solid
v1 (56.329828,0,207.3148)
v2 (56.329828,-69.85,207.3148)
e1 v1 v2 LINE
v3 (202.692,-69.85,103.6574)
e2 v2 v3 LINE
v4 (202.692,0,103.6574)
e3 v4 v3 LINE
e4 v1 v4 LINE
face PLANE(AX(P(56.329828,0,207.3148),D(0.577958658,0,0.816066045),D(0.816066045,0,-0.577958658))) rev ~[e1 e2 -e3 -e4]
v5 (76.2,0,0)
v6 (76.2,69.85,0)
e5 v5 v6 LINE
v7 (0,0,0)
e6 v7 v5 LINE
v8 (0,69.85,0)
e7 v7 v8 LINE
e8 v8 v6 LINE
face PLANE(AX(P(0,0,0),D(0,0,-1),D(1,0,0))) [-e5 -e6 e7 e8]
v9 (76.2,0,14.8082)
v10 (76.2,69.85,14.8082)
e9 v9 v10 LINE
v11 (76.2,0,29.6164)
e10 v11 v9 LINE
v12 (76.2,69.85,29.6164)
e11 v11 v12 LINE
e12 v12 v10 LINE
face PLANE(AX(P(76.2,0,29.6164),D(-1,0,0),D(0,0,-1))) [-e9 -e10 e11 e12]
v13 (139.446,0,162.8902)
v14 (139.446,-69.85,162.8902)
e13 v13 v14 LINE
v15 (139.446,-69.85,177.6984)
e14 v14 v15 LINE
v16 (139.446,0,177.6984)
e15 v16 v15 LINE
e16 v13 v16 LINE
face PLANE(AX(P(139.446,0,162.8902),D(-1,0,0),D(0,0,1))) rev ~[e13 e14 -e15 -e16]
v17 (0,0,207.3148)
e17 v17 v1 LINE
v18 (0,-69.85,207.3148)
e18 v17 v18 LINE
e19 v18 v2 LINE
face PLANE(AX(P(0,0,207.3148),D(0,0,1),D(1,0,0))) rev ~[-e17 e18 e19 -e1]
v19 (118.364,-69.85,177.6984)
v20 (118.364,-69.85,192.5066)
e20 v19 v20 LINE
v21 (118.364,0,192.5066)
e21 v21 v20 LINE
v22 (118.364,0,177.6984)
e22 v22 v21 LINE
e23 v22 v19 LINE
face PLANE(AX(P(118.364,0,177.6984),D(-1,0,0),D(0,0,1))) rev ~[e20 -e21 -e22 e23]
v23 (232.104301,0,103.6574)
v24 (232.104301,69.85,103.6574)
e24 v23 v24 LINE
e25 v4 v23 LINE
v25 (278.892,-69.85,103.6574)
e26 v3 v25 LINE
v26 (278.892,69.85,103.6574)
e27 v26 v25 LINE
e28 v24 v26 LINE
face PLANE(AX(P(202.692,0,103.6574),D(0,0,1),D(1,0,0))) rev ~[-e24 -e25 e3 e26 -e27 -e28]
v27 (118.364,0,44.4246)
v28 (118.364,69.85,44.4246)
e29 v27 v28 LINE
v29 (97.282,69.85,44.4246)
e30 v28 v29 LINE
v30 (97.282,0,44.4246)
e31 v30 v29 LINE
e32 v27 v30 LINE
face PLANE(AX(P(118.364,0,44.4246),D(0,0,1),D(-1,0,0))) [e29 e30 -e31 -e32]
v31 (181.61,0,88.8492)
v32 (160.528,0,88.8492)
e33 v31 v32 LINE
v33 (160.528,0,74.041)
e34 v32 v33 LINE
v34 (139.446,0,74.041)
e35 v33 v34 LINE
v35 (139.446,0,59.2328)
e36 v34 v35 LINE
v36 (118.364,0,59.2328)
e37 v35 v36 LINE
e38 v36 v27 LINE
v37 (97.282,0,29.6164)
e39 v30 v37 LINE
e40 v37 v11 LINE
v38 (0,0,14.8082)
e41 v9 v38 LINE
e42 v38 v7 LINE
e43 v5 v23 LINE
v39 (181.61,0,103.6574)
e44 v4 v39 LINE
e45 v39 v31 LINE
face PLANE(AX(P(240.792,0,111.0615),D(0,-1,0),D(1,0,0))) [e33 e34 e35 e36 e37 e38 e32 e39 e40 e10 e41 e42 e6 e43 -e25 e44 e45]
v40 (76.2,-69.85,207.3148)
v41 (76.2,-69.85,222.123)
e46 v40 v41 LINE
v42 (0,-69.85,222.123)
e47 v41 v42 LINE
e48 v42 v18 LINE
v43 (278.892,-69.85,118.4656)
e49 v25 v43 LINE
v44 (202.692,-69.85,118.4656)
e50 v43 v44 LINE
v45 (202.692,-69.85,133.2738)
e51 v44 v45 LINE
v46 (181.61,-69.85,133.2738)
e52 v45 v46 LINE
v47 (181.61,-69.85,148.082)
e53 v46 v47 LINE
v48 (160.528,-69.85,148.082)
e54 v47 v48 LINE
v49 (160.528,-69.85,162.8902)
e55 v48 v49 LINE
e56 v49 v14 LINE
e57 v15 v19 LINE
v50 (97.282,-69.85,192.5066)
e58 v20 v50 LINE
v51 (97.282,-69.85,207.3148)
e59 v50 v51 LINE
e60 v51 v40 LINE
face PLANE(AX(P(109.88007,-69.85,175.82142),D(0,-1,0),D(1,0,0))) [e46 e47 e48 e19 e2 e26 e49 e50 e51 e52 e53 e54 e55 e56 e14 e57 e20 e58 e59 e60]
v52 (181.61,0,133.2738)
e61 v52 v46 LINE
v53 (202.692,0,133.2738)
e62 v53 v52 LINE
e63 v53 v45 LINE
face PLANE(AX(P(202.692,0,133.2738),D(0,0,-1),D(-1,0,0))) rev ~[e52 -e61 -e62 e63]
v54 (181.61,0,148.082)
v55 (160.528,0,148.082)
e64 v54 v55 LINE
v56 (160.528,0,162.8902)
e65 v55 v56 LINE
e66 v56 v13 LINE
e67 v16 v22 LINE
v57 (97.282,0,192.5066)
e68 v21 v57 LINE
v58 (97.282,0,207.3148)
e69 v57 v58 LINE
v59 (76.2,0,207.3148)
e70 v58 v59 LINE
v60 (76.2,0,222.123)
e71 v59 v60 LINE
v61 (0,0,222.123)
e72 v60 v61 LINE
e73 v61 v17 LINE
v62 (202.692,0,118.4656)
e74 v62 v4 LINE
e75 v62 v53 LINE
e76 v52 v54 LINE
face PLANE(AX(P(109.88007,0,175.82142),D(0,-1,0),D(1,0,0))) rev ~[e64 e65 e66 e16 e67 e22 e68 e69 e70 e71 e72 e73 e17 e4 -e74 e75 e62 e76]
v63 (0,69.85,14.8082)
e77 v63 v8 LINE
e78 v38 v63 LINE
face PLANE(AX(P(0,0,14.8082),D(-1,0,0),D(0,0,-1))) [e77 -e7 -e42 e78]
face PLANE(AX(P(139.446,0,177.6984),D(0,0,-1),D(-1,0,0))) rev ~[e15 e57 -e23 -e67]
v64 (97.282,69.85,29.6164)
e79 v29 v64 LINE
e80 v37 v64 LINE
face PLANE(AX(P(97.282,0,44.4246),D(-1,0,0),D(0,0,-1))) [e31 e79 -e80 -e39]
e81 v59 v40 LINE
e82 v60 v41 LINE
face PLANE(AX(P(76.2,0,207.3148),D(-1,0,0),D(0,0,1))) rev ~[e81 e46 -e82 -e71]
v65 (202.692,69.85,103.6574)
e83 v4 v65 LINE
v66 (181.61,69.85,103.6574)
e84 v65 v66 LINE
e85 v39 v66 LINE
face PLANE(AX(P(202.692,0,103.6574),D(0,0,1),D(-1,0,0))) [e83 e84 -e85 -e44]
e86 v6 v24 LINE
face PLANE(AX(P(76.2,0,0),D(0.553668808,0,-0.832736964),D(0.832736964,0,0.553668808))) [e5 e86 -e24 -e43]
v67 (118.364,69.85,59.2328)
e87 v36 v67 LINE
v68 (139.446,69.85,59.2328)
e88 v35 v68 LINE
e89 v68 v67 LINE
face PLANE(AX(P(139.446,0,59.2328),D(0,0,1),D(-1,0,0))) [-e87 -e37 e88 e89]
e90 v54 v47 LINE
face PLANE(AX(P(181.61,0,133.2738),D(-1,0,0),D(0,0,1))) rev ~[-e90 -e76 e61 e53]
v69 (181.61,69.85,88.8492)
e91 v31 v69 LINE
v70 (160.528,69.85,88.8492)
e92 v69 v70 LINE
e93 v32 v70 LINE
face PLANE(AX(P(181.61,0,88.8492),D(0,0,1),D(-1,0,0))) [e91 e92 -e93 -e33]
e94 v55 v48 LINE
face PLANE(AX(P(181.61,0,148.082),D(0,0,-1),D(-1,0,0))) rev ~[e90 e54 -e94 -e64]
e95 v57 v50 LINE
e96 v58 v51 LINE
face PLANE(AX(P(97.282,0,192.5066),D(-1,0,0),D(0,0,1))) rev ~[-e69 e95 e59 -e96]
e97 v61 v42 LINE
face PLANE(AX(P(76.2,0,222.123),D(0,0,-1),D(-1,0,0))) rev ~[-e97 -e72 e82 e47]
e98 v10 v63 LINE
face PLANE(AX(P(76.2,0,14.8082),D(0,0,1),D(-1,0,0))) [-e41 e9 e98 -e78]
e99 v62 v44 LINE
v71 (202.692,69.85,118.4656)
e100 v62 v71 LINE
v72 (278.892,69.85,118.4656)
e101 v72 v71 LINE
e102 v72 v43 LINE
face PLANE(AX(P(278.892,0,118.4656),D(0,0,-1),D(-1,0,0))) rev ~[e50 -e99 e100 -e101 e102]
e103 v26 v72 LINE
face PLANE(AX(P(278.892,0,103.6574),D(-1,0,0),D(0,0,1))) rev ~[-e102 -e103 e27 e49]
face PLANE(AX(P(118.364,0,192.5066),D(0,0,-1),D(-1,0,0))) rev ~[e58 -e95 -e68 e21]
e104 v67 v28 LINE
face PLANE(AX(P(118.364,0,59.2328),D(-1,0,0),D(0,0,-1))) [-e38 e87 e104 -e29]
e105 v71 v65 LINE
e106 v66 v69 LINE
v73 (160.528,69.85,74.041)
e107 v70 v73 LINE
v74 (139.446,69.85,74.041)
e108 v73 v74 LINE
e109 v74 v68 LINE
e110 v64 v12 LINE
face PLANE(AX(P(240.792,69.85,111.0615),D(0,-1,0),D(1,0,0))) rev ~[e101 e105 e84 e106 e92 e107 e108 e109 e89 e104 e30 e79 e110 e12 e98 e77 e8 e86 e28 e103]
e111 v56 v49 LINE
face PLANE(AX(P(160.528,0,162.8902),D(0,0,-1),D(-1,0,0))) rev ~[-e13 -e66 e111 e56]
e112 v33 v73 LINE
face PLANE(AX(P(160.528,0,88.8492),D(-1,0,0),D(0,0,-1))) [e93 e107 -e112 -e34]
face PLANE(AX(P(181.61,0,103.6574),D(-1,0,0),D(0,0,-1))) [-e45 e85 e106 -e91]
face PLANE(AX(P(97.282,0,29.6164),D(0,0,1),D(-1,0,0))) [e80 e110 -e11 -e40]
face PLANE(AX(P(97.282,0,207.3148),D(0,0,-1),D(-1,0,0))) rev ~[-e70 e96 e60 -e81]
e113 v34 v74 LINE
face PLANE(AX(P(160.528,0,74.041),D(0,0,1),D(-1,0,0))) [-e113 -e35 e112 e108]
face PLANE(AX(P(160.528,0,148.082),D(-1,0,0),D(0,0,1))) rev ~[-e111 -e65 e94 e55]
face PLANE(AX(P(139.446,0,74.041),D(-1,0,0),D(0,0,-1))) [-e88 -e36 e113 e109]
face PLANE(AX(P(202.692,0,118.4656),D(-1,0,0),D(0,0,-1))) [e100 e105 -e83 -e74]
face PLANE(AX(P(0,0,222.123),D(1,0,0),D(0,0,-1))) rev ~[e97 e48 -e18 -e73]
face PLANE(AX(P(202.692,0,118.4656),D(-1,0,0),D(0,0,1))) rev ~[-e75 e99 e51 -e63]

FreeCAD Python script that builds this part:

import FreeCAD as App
import Part
import Sketcher
Q = App.Units.Quantity

doc = App.newDocument("Part")
body = doc.addObject("PartDesign::Body", "Body")

# Sketch on XZ plane
sketch1 = body.newObject("Sketcher::SketchObject", "Sketch")
sketch1.AttachmentSupport = (doc.getObject("XZ_Plane"), [""])
sketch1.MapMode = "FlatFace"
sketch1.addGeometry(Part.LineSegment(App.Vector(232, 104, 0), App.Vector(279, 104, 0)), False)
sketch1.addGeometry(Part.LineSegment(App.Vector(279, 104, 0), App.Vector(279, 118, 0)), False)
sketch1.addGeometry(Part.LineSegment(App.Vector(279, 118, 0), App.Vector(203, 118, 0)), False)
sketch1.addGeometry(Part.LineSegment(App.Vector(203, 118, 0), App.Vector(203, 104, 0)), False)
sketch1.addGeometry(Part.LineSegment(App.Vector(203, 104, 0), App.Vector(182, 104, 0)), False)
sketch1.addGeometry(Part.LineSegment(App.Vector(182, 104, 0), App.Vector(182, 89, 0)), False)
sketch1.addGeometry(Part.LineSegment(App.Vector(182, 89, 0), App.Vector(161, 89, 0)), False)
sketch1.addGeometry(Part.LineSegment(App.Vector(161, 89, 0), App.Vector(161, 74, 0)), False)
sketch1.addGeometry(Part.LineSegment(App.Vector(161, 74, 0), App.Vector(139, 74, 0)), False)
sketch1.addGeometry(Part.LineSegment(App.Vector(139, 74, 0), App.Vector(139, 59, 0)), False)
sketch1.addGeometry(Part.LineSegment(App.Vector(139, 59, 0), App.Vector(118, 59, 0)), False)
sketch1.addGeometry(Part.LineSegment(App.Vector(118, 59, 0), App.Vector(118, 44, 0)), False)
sketch1.addGeometry(Part.LineSegment(App.Vector(118, 44, 0), App.Vector(97, 44, 0)), False)
sketch1.addGeometry(Part.LineSegment(App.Vector(97, 44, 0), App.Vector(97, 30, 0)), False)
sketch1.addGeometry(Part.LineSegment(App.Vector(97, 30, 0), App.Vector(76, 30, 0)), False)
sketch1.addGeometry(Part.LineSegment(App.Vector(76, 30, 0), App.Vector(76, 15, 0)), False)
sketch1.addGeometry(Part.LineSegment(App.Vector(76, 15, 0), App.Vector(0, 15, 0)), False)
sketch1.addGeometry(Part.LineSegment(App.Vector(0, 15, 0), App.Vector(0, 0, 0)), False)
sketch1.addGeometry(Part.LineSegment(App.Vector(0, 0, 0), App.Vector(76, 0, 0)), False)
sketch1.addGeometry(Part.LineSegment(App.Vector(76, 0, 0), App.Vector(232, 104, 0)), False)
sketch1.addConstraint(Sketcher.Constraint("Coincident", 0, 2, 1, 1))
sketch1.addConstraint(Sketcher.Constraint("Coincident", 1, 2, 2, 1))
sketch1.addConstraint(Sketcher.Constraint("Coincident", 2, 2, 3, 1))
sketch1.addConstraint(Sketcher.Constraint("Coincident", 3, 2, 4, 1))
sketch1.addConstraint(Sketcher.Constraint("Coincident", 4, 2, 5, 1))
sketch1.addConstraint(Sketcher.Constraint("Coincident", 5, 2, 6, 1))
sketch1.addConstraint(Sketcher.Constraint("Coincident", 6, 2, 7, 1))
sketch1.addConstraint(Sketcher.Constraint("Coincident", 7, 2, 8, 1))
sketch1.addConstraint(Sketcher.Constraint("Coincident", 8, 2, 9, 1))
sketch1.addConstraint(Sketcher.Constraint("Coincident", 9, 2, 10, 1))
sketch1.addConstraint(Sketcher.Constraint("Coincident", 10, 2, 11, 1))
sketch1.addConstraint(Sketcher.Constraint("Coincident", 11, 2, 12, 1))
sketch1.addConstraint(Sketcher.Constraint("Coincident", 12, 2, 13, 1))
sketch1.addConstraint(Sketcher.Constraint("Coincident", 13, 2, 14, 1))
sketch1.addConstraint(Sketcher.Constraint("Coincident", 14, 2, 15, 1))
sketch1.addConstraint(Sketcher.Constraint("Coincident", 15, 2, 16, 1))
sketch1.addConstraint(Sketcher.Constraint("Coincident", 16, 2, 17, 1))
sketch1.addConstraint(Sketcher.Constraint("Coincident", 17, 2, 18, 1))
sketch1.addConstraint(Sketcher.Constraint("Coincident", 18, 2, 19, 1))
sketch1.addConstraint(Sketcher.Constraint("Coincident", 19, 2, 0, 1))
sketch1.addConstraint(Sketcher.Constraint("Horizontal", 0))
sketch1.addConstraint(Sketcher.Constraint("Vertical", 1))
sketch1.addConstraint(Sketcher.Constraint("Horizontal", 2))
sketch1.addConstraint(Sketcher.Constraint("Vertical", 3))
sketch1.addConstraint(Sketcher.Constraint("Horizontal", 4))
sketch1.addConstraint(Sketcher.Constraint("Vertical", 5))
sketch1.addConstraint(Sketcher.Constraint("Horizontal", 6))
sketch1.addConstraint(Sketcher.Constraint("Vertical", 7))
sketch1.addConstraint(Sketcher.Constraint("Horizontal", 8))
sketch1.addConstraint(Sketcher.Constraint("Vertical", 9))
sketch1.addConstraint(Sketcher.Constraint("Horizontal", 10))
sketch1.addConstraint(Sketcher.Constraint("Vertical", 11))
sketch1.addConstraint(Sketcher.Constraint("Horizontal", 12))
sketch1.addConstraint(Sketcher.Constraint("Vertical", 13))
sketch1.addConstraint(Sketcher.Constraint("Horizontal", 14))
sketch1.addConstraint(Sketcher.Constraint("Vertical", 15))
sketch1.addConstraint(Sketcher.Constraint("Horizontal", 16))
sketch1.addConstraint(Sketcher.Constraint("Vertical", 17))
sketch1.addConstraint(Sketcher.Constraint("Horizontal", 18))
sketch1.addConstraint(Sketcher.Constraint("Coincident", 17, 2, -1, 1))
sketch1.addConstraint(Sketcher.Constraint("Horizontal", 0, 2, 3, 2))
sketch1.addConstraint(Sketcher.Constraint("Vertical", 15, 2, 18, 2))
sketch1.addConstraint(Sketcher.Constraint("Equal", 4, 6))
sketch1.addConstraint(Sketcher.Constraint("Equal", 6, 8))
sketch1.addConstraint(Sketcher.Constraint("Equal", 8, 10))
sketch1.addConstraint(Sketcher.Constraint("Equal", 10, 12))
sketch1.addConstraint(Sketcher.Constraint("Equal", 12, 14))
sketch1.addConstraint(Sketcher.Constraint("Equal", 2, 16))
sketch1.addConstraint(Sketcher.Constraint("Equal", 3, 5))
sketch1.addConstraint(Sketcher.Constraint("Equal", 5, 7))
sketch1.addConstraint(Sketcher.Constraint("Equal", 7, 9))
sketch1.addConstraint(Sketcher.Constraint("Equal", 9, 11))
sketch1.addConstraint(Sketcher.Constraint("Equal", 11, 13))
sketch1.addConstraint(Sketcher.Constraint("Equal", 13, 15))
sketch1.addConstraint(Sketcher.Constraint("Equal", 15, 17))
sketch1.addConstraint(Sketcher.Constraint("DistanceX", 2, 2, 2, 1, Q("3 in")))
sketch1.addConstraint(Sketcher.Constraint("DistanceX", 4, 2, 4, 1, Q("0.83 in")))
sketch1.addConstraint(Sketcher.Constraint("DistanceY", 1, 1, 1, 2, Q("0.583 in")))
sketch1.addConstraint(Sketcher.Constraint("DistanceX", 0, 1, 0, 2, Q("46.787699 mm")))
pad1 = body.newObject("PartDesign::Pad", "Pad")
pad1.Profile = sketch1
pad1.Length = Q("2.75 in")
pad1.Reversed = True

# Sketch on XZ plane
sketch2 = body.newObject("Sketcher::SketchObject", "Sketch001")
sketch2.AttachmentSupport = (doc.getObject("XZ_Plane"), [""])
sketch2.MapMode = "FlatFace"
sketch2.addGeometry(Part.LineSegment(App.Vector(56, 207, 0), App.Vector(203, 104, 0)), False)
sketch2.addGeometry(Part.LineSegment(App.Vector(203, 104, 0), App.Vector(279, 104, 0)), False)
sketch2.addGeometry(Part.LineSegment(App.Vector(279, 104, 0), App.Vector(279, 118, 0)), False)
sketch2.addGeometry(Part.LineSegment(App.Vector(279, 118, 0), App.Vector(203, 118, 0)), False)
sketch2.addGeometry(Part.LineSegment(App.Vector(203, 118, 0), App.Vector(203, 133, 0)), False)
sketch2.addGeometry(Part.LineSegment(App.Vector(203, 133, 0), App.Vector(182, 133, 0)), False)
sketch2.addGeometry(Part.LineSegment(App.Vector(182, 133, 0), App.Vector(182, 148, 0)), False)
sketch2.addGeometry(Part.LineSegment(App.Vector(182, 148, 0), App.Vector(161, 148, 0)), False)
sketch2.addGeometry(Part.LineSegment(App.Vector(161, 148, 0), App.Vector(161, 163, 0)), False)
sketch2.addGeometry(Part.LineSegment(App.Vector(161, 163, 0), App.Vector(139, 163, 0)), False)
sketch2.addGeometry(Part.LineSegment(App.Vector(139, 163, 0), App.Vector(139, 178, 0)), False)
sketch2.addGeometry(Part.LineSegment(App.Vector(139, 178, 0), App.Vector(118, 178, 0)), False)
sketch2.addGeometry(Part.LineSegment(App.Vector(118, 178, 0), App.Vector(118, 193, 0)), False)
sketch2.addGeometry(Part.LineSegment(App.Vector(118, 193, 0), App.Vector(97, 193, 0)), False)
sketch2.addGeometry(Part.LineSegment(App.Vector(97, 193, 0), App.Vector(97, 207, 0)), False)
sketch2.addGeometry(Part.LineSegment(App.Vector(97, 207, 0), App.Vector(76, 207, 0)), False)
sketch2.addGeometry(Part.LineSegment(App.Vector(76, 207, 0), App.Vector(76, 222, 0)), False)
sketch2.addGeometry(Part.LineSegment(App.Vector(76, 222, 0), App.Vector(0, 222, 0)), False)
sketch2.addGeometry(Part.LineSegment(App.Vector(0, 222, 0), App.Vector(0, 207, 0)), False)
sketch2.addGeometry(Part.LineSegment(App.Vector(0, 207, 0), App.Vector(56, 207, 0)), False)
sketch2.addConstraint(Sketcher.Constraint("Coincident", 0, 2, 1, 1))
sketch2.addConstraint(Sketcher.Constraint("Coincident", 1, 2, 2, 1))
sketch2.addConstraint(Sketcher.Constraint("Coincident", 2, 2, 3, 1))
sketch2.addConstraint(Sketcher.Constraint("Coincident", 3, 2, 4, 1))
sketch2.addConstraint(Sketcher.Constraint("Coincident", 4, 2, 5, 1))
sketch2.addConstraint(Sketcher.Constraint("Coincident", 5, 2, 6, 1))
sketch2.addConstraint(Sketcher.Constraint("Coincident", 6, 2, 7, 1))
sketch2.addConstraint(Sketcher.Constraint("Coincident", 7, 2, 8, 1))
sketch2.addConstraint(Sketcher.Constraint("Coincident", 8, 2, 9, 1))
sketch2.addConstraint(Sketcher.Constraint("Coincident", 9, 2, 10, 1))
sketch2.addConstraint(Sketcher.Constraint("Coincident", 10, 2, 11, 1))
sketch2.addConstraint(Sketcher.Constraint("Coincident", 11, 2, 12, 1))
sketch2.addConstraint(Sketcher.Constraint("Coincident", 12, 2, 13, 1))
sketch2.addConstraint(Sketcher.Constraint("Coincident", 13, 2, 14, 1))
sketch2.addConstraint(Sketcher.Constraint("Coincident", 14, 2, 15, 1))
sketch2.addConstraint(Sketcher.Constraint("Coincident", 15, 2, 16, 1))
sketch2.addConstraint(Sketcher.Constraint("Coincident", 16, 2, 17, 1))
sketch2.addConstraint(Sketcher.Constraint("Coincident", 17, 2, 18, 1))
sketch2.addConstraint(Sketcher.Constraint("Coincident", 18, 2, 19, 1))
sketch2.addConstraint(Sketcher.Constraint("Coincident", 19, 2, 0, 1))
sketch2.addConstraint(Sketcher.Constraint("Horizontal", 1))
sketch2.addConstraint(Sketcher.Constraint("Vertical", 2))
sketch2.addConstraint(Sketcher.Constraint("Horizontal", 3))
sketch2.addConstraint(Sketcher.Constraint("Vertical", 4))
sketch2.addConstraint(Sketcher.Constraint("Horizontal", 5))
sketch2.addConstraint(Sketcher.Constraint("Vertical", 6))
sketch2.addConstraint(Sketcher.Constraint("Horizontal", 7))
sketch2.addConstraint(Sketcher.Constraint("Vertical", 8))
sketch2.addConstraint(Sketcher.Constraint("Horizontal", 9))
sketch2.addConstraint(Sketcher.Constraint("Vertical", 10))
sketch2.addConstraint(Sketcher.Constraint("Horizontal", 11))
sketch2.addConstraint(Sketcher.Constraint("Vertical", 12))
sketch2.addConstraint(Sketcher.Constraint("Horizontal", 13))
sketch2.addConstraint(Sketcher.Constraint("Vertical", 14))
sketch2.addConstraint(Sketcher.Constraint("Horizontal", 15))
sketch2.addConstraint(Sketcher.Constraint("Vertical", 16))
sketch2.addConstraint(Sketcher.Constraint("Horizontal", 17))
sketch2.addConstraint(Sketcher.Constraint("Vertical", 18))
sketch2.addConstraint(Sketcher.Constraint("Horizontal", 19))
sketch2.addConstraint(Sketcher.Constraint("PointOnObject", 17, 2, -2))
sketch2.addConstraint(Sketcher.Constraint("Horizontal", 15, 2, 18, 2))
sketch2.addConstraint(Sketcher.Constraint("Vertical", 0, 2, 3, 2))
sketch2.addConstraint(Sketcher.Constraint("Equal", 5, 7))
sketch2.addConstraint(Sketcher.Constraint("Equal", 7, 9))
sketch2.addConstraint(Sketcher.Constraint("Equal", 9, 11))
sketch2.addConstraint(Sketcher.Constraint("Equal", 11, 13))
sketch2.addConstraint(Sketcher.Constraint("Equal", 13, 15))
sketch2.addConstraint(Sketcher.Constraint("Equal", 3, 17))
sketch2.addConstraint(Sketcher.Constraint("Equal", 2, 4))
sketch2.addConstraint(Sketcher.Constraint("Equal", 4, 6))
sketch2.addConstraint(Sketcher.Constraint("Equal", 6, 8))
sketch2.addConstraint(Sketcher.Constraint("Equal", 8, 10))
sketch2.addConstraint(Sketcher.Constraint("Equal", 10, 12))
sketch2.addConstraint(Sketcher.Constraint("Equal", 12, 14))
sketch2.addConstraint(Sketcher.Constraint("Equal", 14, 16))
sketch2.addConstraint(Sketcher.Constraint("DistanceX", 1, 1, 1, 2, Q("3 in")))
sketch2.addConstraint(Sketcher.Constraint("DistanceX", 5, 2, 5, 1, Q("0.83 in")))
sketch2.addConstraint(Sketcher.Constraint("DistanceY", 2, 1, 2, 2, Q("0.583 in")))
sketch2.addConstraint(Sketcher.Constraint("DistanceY", -1, 1, 6, 2, Q("5.83 in")))
sketch2.addConstraint(Sketcher.Constraint("Distance", 0, Q("179.350891 mm")))
pad2 = body.newObject("PartDesign::Pad", "Pad001")
pad2.Profile = sketch2
pad2.Length = Q("2.75 in")

doc.recompute()
